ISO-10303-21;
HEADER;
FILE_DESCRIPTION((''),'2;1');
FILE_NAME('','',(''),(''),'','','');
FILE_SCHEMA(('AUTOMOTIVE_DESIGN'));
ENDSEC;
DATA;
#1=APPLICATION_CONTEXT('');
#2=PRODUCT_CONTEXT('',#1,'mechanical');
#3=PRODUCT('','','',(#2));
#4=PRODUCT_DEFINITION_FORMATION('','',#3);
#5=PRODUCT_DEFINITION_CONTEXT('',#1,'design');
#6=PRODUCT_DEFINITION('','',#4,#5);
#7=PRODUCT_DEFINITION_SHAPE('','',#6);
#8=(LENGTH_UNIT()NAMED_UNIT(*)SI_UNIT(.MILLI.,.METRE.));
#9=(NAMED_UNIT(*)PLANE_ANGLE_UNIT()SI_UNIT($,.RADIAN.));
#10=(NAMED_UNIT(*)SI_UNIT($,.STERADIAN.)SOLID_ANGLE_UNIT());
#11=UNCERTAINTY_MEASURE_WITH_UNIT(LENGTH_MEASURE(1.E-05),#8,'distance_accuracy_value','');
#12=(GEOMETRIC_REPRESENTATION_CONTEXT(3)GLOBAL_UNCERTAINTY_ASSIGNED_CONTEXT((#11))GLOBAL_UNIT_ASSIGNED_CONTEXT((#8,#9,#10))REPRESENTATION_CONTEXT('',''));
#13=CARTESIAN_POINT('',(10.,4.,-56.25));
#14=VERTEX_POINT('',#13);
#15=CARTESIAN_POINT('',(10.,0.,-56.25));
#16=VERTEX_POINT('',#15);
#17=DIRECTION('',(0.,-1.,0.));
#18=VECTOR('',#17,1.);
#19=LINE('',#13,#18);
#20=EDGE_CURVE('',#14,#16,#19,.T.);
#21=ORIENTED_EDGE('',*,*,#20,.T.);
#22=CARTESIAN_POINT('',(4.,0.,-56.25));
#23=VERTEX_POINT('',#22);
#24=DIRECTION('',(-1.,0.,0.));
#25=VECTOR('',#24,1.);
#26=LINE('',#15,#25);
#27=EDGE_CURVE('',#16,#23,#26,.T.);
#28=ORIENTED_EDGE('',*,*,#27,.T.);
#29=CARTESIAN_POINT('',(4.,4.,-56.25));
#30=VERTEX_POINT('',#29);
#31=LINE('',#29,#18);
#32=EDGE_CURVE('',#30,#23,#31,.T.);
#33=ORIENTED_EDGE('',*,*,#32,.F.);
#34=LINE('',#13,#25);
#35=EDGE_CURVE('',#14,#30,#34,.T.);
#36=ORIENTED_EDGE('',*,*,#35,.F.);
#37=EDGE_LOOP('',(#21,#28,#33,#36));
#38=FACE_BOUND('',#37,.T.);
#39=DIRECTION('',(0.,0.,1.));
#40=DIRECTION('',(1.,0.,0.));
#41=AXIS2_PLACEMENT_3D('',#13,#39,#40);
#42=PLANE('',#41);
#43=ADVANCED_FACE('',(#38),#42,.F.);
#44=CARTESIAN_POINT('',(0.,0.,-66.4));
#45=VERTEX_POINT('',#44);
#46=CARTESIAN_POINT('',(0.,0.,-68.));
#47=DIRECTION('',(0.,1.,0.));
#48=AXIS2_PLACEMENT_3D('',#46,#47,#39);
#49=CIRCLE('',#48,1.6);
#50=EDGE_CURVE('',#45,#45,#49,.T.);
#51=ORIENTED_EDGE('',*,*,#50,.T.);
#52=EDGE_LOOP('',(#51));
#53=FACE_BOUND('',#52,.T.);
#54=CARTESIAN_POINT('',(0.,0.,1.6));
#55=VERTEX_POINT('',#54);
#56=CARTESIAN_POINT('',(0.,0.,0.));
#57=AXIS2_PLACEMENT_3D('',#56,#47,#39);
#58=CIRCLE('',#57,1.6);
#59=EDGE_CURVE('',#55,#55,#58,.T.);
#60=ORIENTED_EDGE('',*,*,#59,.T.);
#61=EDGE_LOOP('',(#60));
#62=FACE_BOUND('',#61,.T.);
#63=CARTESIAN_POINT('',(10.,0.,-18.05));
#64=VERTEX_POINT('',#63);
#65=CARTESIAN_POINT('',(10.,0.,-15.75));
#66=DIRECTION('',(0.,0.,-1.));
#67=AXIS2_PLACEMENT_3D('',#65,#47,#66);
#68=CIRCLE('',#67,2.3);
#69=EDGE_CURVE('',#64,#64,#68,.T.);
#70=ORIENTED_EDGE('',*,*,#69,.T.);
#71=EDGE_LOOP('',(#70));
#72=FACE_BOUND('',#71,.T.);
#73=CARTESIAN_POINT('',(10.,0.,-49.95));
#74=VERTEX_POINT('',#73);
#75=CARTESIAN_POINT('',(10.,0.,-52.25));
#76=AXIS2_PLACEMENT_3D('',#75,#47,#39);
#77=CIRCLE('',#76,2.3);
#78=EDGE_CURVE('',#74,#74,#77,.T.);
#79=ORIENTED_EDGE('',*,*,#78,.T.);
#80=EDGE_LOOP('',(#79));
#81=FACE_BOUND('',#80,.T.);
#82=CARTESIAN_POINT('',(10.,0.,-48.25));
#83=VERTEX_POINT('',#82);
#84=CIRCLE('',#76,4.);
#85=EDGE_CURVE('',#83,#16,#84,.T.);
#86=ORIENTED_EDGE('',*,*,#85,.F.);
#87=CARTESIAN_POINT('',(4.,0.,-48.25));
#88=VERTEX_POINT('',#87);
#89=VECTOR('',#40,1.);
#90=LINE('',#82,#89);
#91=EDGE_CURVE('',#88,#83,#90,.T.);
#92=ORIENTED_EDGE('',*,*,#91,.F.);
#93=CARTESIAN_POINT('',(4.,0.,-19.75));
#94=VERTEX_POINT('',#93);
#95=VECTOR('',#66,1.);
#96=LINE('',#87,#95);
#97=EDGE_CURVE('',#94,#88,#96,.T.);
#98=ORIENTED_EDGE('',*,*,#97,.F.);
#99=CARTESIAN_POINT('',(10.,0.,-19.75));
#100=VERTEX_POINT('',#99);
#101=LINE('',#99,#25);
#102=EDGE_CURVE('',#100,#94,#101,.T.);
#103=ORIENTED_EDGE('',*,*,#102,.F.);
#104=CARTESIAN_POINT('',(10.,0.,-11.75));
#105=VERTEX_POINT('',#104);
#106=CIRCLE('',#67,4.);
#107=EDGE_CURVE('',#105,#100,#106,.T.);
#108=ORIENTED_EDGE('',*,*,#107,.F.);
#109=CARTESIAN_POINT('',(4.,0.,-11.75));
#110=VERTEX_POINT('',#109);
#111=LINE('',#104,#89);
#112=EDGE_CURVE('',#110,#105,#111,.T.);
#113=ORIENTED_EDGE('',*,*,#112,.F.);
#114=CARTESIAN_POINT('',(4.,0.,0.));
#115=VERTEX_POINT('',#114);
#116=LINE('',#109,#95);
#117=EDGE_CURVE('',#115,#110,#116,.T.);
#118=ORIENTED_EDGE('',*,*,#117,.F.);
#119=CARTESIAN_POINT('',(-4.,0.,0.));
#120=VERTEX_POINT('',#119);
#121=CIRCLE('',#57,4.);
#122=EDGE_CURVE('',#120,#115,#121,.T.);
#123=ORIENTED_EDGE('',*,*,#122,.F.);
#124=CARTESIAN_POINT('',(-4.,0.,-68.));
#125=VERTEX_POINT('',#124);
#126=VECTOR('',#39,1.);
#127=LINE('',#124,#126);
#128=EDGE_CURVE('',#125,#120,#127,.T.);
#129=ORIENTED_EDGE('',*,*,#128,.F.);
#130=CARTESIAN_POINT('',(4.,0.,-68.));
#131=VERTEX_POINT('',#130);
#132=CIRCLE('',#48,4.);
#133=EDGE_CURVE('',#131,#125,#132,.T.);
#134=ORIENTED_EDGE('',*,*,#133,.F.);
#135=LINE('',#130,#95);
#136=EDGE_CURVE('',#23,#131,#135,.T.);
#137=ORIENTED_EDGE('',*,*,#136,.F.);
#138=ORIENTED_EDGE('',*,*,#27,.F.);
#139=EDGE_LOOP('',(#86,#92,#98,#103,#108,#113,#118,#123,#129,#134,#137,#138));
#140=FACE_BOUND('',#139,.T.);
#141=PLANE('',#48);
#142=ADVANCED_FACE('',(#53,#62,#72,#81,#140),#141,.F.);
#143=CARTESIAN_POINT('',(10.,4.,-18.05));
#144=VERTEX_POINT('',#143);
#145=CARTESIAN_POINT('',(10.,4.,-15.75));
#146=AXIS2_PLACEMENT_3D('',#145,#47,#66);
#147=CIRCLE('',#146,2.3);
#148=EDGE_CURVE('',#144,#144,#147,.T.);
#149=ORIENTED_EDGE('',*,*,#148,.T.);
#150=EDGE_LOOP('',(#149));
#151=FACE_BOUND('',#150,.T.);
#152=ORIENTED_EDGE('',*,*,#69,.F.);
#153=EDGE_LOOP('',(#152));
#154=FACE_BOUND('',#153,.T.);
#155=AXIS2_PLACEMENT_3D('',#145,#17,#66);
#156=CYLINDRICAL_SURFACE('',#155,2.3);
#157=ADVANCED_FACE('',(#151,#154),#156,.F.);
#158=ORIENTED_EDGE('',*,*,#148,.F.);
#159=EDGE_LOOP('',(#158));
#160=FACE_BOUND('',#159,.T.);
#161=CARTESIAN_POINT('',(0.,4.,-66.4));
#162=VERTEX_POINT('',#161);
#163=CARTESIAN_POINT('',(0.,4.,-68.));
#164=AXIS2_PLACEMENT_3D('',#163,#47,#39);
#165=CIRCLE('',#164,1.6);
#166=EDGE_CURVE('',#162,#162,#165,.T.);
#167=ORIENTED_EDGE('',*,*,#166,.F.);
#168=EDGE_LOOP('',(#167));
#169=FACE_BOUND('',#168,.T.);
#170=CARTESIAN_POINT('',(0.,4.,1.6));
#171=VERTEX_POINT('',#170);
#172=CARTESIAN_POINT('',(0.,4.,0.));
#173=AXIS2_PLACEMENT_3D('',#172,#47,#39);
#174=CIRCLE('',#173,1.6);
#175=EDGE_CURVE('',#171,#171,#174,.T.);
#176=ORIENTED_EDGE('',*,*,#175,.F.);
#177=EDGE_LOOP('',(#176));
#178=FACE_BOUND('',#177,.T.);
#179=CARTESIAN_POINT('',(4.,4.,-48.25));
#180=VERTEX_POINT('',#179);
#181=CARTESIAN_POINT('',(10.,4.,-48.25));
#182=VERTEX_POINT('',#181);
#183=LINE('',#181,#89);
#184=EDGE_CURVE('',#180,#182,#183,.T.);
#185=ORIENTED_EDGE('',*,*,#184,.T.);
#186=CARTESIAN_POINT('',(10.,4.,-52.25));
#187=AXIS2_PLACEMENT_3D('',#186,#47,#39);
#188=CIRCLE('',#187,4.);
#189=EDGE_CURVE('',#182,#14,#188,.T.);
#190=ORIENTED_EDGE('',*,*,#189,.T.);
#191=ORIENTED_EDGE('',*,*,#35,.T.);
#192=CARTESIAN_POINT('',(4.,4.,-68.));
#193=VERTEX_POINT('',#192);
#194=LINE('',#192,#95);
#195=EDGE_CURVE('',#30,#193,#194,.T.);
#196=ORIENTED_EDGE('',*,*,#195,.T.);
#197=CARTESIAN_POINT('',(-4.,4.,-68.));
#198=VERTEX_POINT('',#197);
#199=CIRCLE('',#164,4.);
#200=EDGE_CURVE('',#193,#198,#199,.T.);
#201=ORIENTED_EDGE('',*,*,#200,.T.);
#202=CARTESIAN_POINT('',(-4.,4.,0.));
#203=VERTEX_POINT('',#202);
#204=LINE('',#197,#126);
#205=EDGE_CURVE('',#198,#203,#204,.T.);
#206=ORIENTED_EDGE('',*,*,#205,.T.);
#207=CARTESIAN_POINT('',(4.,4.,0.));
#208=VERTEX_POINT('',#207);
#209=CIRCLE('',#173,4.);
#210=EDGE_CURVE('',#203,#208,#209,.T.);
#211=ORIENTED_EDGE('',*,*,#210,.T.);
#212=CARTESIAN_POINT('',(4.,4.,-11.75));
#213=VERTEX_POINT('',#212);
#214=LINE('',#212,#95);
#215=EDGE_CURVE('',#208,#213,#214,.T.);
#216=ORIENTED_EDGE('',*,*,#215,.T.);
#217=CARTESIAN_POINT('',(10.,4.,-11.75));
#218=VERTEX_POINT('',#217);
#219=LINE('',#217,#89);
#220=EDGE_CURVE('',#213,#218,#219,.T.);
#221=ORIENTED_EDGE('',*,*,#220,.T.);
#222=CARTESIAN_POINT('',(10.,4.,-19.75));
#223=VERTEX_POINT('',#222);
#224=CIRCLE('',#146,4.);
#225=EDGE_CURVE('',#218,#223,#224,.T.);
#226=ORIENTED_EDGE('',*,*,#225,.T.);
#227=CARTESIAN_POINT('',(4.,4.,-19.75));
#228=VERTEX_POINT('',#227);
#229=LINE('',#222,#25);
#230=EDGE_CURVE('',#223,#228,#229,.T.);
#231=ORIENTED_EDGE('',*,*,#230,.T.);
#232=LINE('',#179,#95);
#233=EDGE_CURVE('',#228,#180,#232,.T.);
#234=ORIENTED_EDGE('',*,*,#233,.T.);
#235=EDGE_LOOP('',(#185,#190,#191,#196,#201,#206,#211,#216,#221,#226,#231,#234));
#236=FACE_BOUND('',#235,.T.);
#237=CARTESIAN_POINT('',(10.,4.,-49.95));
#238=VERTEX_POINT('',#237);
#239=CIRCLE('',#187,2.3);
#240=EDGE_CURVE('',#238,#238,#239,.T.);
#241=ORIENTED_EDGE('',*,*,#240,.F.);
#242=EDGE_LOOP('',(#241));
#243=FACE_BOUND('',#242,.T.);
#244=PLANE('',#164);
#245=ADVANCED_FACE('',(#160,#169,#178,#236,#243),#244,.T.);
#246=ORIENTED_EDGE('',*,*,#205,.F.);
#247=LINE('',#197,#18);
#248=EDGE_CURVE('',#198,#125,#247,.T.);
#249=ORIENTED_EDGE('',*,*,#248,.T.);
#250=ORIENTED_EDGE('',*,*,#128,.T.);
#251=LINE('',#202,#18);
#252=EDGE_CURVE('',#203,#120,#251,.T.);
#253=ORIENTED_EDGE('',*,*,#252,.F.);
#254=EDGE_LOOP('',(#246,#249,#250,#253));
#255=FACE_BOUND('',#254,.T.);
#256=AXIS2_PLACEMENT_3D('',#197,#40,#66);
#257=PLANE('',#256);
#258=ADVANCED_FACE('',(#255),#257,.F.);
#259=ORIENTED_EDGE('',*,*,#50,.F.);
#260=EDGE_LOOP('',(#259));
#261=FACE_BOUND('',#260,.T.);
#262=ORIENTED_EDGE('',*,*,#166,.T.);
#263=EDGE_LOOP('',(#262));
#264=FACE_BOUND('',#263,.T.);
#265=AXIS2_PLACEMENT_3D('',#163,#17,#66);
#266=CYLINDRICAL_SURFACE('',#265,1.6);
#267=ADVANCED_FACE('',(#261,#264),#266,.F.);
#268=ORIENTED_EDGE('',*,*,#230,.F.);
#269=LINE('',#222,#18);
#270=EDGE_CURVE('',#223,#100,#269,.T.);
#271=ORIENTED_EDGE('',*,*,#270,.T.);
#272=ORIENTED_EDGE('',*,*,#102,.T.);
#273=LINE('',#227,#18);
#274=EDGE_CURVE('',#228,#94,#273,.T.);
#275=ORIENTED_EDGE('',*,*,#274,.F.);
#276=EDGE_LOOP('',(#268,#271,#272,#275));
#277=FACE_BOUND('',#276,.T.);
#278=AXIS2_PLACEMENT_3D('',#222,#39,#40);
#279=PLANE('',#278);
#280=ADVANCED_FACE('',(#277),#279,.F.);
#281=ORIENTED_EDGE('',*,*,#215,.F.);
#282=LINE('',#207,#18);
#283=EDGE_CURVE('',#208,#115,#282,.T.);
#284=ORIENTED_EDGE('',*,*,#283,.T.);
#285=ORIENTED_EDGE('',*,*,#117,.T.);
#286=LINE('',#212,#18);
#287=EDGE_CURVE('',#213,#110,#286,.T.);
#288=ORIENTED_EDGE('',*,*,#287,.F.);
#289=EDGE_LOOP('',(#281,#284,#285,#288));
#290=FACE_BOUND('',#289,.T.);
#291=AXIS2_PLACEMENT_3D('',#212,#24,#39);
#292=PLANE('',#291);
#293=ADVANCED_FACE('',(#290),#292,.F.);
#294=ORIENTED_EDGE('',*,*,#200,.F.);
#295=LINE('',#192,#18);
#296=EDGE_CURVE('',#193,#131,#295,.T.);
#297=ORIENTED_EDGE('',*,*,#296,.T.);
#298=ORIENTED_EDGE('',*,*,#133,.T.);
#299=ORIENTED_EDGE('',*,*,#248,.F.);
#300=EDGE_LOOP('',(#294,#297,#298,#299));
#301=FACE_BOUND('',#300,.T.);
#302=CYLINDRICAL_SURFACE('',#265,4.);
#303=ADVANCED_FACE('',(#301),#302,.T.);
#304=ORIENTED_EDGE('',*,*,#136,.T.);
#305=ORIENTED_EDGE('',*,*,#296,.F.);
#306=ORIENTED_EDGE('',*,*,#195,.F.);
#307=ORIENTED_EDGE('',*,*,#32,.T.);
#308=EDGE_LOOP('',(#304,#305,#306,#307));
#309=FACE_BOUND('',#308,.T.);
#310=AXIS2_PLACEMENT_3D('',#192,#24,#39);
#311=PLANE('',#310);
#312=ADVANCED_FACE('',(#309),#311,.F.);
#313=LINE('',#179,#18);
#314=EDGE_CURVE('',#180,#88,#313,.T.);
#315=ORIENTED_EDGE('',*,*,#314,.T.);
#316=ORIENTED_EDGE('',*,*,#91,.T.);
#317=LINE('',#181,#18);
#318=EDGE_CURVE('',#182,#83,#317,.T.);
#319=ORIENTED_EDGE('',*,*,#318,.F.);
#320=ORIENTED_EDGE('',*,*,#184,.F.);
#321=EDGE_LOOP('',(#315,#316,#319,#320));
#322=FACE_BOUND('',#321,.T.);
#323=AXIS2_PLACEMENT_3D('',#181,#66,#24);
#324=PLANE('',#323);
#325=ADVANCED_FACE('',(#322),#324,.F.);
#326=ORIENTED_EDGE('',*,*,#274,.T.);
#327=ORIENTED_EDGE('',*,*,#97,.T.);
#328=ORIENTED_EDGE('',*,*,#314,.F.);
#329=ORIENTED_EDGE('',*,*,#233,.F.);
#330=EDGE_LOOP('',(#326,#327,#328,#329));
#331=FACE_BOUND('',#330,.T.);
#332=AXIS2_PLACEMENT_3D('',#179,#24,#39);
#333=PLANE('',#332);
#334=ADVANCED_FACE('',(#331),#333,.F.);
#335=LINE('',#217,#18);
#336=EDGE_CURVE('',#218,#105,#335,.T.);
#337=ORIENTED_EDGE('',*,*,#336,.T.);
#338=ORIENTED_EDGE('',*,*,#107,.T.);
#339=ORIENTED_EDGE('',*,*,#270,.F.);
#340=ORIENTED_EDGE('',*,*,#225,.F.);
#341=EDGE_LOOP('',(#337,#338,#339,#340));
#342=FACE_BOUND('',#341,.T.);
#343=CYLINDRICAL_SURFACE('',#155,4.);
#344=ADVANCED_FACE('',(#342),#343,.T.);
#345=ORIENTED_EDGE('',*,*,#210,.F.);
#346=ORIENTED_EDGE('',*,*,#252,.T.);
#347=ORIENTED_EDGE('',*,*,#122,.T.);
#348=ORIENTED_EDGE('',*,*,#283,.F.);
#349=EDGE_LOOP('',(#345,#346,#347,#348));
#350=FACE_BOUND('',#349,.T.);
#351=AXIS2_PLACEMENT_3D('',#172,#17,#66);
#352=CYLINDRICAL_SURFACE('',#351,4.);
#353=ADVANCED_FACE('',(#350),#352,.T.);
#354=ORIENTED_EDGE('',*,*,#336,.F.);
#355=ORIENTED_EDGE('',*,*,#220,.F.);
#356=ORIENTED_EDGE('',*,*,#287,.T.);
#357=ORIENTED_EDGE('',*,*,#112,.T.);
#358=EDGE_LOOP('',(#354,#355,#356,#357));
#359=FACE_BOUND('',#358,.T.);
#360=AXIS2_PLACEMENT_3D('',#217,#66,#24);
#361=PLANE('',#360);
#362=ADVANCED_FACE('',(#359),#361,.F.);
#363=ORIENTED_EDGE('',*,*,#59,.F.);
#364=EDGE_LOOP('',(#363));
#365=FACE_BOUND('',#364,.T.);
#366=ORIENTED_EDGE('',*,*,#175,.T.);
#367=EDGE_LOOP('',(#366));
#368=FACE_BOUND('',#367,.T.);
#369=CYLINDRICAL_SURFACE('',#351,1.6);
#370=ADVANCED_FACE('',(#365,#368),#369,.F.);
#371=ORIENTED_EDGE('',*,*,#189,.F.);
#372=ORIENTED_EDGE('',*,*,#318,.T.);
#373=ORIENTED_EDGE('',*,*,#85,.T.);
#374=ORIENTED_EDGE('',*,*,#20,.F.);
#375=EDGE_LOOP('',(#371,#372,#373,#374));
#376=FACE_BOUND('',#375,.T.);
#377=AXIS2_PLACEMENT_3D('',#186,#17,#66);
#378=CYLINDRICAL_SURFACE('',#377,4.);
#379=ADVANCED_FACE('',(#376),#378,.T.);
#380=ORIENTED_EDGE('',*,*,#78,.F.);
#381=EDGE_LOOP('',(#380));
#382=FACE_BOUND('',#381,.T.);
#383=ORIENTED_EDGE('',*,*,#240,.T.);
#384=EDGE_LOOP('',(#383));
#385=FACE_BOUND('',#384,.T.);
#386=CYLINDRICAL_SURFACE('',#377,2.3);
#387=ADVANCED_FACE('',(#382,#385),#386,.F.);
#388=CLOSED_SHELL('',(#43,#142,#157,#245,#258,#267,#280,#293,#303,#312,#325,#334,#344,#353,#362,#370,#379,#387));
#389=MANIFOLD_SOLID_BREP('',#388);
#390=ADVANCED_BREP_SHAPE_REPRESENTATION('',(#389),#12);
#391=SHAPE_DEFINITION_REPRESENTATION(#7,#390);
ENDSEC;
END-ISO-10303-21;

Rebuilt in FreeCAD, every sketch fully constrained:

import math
import FreeCAD as App
import Part
import Sketcher
Q = App.Units.Quantity

doc = App.newDocument("Part")
body = doc.addObject("PartDesign::Body", "Body")

# Sketch on XZ plane
sketch1 = body.newObject("Sketcher::SketchObject", "Sketch")
sketch1.AttachmentSupport = (doc.getObject("XZ_Plane"), [""])
sketch1.MapMode = "FlatFace"
sketch1.addGeometry([
    Part.LineSegment(App.Vector(-4, -68, 0), App.Vector(-4, 0, 0)),  # 0
    Part.ArcOfCircle(Part.Circle(App.Vector(0, 0, 0), App.Vector(0, 0, 1), 4), math.radians(0), math.radians(180)),  # 1
    Part.LineSegment(App.Vector(4, 0, 0), App.Vector(4, -11.8, 0)),  # 2
    Part.LineSegment(App.Vector(4, -11.8, 0), App.Vector(10, -11.8, 0)),  # 3
    Part.ArcOfCircle(Part.Circle(App.Vector(10, -15.8, 0), App.Vector(0, 0, 1), 4), math.radians(-90), math.radians(90)),  # 4
    Part.LineSegment(App.Vector(10, -19.8, 0), App.Vector(4, -19.8, 0)),  # 5
    Part.LineSegment(App.Vector(4, -19.8, 0), App.Vector(4, -48.2, 0)),  # 6
    Part.LineSegment(App.Vector(4, -48.2, 0), App.Vector(10, -48.2, 0)),  # 7
    Part.ArcOfCircle(Part.Circle(App.Vector(10, -52.2, 0), App.Vector(0, 0, 1), 4), math.radians(-90), math.radians(90)),  # 8
    Part.LineSegment(App.Vector(10, -56.2, 0), App.Vector(4, -56.2, 0)),  # 9
    Part.LineSegment(App.Vector(4, -56.2, 0), App.Vector(4, -68, 0)),  # 10
    Part.ArcOfCircle(Part.Circle(App.Vector(0, -68, 0), App.Vector(0, 0, 1), 4), math.radians(180), math.radians(360)),  # 11
    Part.Circle(App.Vector(0, 0, 0), App.Vector(0, 0, 1), 1.6),  # 12
    Part.Circle(App.Vector(10, -15.8, 0), App.Vector(0, 0, 1), 2.3),  # 13
    Part.Circle(App.Vector(0, -68, 0), App.Vector(0, 0, 1), 1.6),  # 14
    Part.Circle(App.Vector(10, -52.2, 0), App.Vector(0, 0, 1), 2.3),  # 15
], False)
sketch1.addConstraint([
    Sketcher.Constraint("Tangent", 0, 2, 1, 2),
    Sketcher.Constraint("Tangent", 1, 1, 2, 1),
    Sketcher.Constraint("Coincident", 2, 2, 3, 1),
    Sketcher.Constraint("Tangent", 3, 2, 4, 2),
    Sketcher.Constraint("Tangent", 4, 1, 5, 1),
    Sketcher.Constraint("Coincident", 5, 2, 6, 1),
    Sketcher.Constraint("Coincident", 6, 2, 7, 1),
    Sketcher.Constraint("Tangent", 7, 2, 8, 2),
    Sketcher.Constraint("Tangent", 8, 1, 9, 1),
    Sketcher.Constraint("Coincident", 9, 2, 10, 1),
    Sketcher.Constraint("Tangent", 10, 2, 11, 2),
    Sketcher.Constraint("Tangent", 11, 1, 0, 1),
    Sketcher.Constraint("Vertical", 0),
    Sketcher.Constraint("Vertical", 2),
    Sketcher.Constraint("Horizontal", 3),
    Sketcher.Constraint("Horizontal", 5),
    Sketcher.Constraint("Vertical", 6),
    Sketcher.Constraint("Horizontal", 7),
    Sketcher.Constraint("Horizontal", 9),
    Sketcher.Constraint("Vertical", 10),
    Sketcher.Constraint("Coincident", 1, 3, -1, 1),
    Sketcher.Constraint("Coincident", 12, 3, -1, 1),
    Sketcher.Constraint("Coincident", 13, 3, 4, 3),
    Sketcher.Constraint("Coincident", 14, 3, 11, 3),
    Sketcher.Constraint("Coincident", 15, 3, 8, 3),
    Sketcher.Constraint("Equal", 1, 4),
    Sketcher.Constraint("Equal", 4, 8),
    Sketcher.Constraint("Equal", 8, 11),
    Sketcher.Constraint("Equal", 12, 14),
    Sketcher.Constraint("Equal", 13, 15),
    Sketcher.Constraint("Vertical", 4, 3, 8, 3),
    Sketcher.Constraint("Vertical", 2, 2, 5, 2),
    Sketcher.Constraint("Equal", 2, 10),
    Sketcher.Constraint("Radius", 1, Q("4 mm")),
    Sketcher.Constraint("Diameter", 12, Q("3.2 mm")),
    Sketcher.Constraint("Diameter", 13, Q("4.6 mm")),
    Sketcher.Constraint("DistanceX", 3, 1, 3, 2, Q("6 mm")),
    Sketcher.Constraint("DistanceY", 0, 1, 0, 2, Q("68 mm")),
    Sketcher.Constraint("DistanceY", 6, 2, 6, 1, Q("28.5 mm")),
])
pad1 = body.newObject("PartDesign::Pad", "Pad")
pad1.Profile = sketch1
pad1.Length = 4
pad1.Reversed = True

doc.recompute()
